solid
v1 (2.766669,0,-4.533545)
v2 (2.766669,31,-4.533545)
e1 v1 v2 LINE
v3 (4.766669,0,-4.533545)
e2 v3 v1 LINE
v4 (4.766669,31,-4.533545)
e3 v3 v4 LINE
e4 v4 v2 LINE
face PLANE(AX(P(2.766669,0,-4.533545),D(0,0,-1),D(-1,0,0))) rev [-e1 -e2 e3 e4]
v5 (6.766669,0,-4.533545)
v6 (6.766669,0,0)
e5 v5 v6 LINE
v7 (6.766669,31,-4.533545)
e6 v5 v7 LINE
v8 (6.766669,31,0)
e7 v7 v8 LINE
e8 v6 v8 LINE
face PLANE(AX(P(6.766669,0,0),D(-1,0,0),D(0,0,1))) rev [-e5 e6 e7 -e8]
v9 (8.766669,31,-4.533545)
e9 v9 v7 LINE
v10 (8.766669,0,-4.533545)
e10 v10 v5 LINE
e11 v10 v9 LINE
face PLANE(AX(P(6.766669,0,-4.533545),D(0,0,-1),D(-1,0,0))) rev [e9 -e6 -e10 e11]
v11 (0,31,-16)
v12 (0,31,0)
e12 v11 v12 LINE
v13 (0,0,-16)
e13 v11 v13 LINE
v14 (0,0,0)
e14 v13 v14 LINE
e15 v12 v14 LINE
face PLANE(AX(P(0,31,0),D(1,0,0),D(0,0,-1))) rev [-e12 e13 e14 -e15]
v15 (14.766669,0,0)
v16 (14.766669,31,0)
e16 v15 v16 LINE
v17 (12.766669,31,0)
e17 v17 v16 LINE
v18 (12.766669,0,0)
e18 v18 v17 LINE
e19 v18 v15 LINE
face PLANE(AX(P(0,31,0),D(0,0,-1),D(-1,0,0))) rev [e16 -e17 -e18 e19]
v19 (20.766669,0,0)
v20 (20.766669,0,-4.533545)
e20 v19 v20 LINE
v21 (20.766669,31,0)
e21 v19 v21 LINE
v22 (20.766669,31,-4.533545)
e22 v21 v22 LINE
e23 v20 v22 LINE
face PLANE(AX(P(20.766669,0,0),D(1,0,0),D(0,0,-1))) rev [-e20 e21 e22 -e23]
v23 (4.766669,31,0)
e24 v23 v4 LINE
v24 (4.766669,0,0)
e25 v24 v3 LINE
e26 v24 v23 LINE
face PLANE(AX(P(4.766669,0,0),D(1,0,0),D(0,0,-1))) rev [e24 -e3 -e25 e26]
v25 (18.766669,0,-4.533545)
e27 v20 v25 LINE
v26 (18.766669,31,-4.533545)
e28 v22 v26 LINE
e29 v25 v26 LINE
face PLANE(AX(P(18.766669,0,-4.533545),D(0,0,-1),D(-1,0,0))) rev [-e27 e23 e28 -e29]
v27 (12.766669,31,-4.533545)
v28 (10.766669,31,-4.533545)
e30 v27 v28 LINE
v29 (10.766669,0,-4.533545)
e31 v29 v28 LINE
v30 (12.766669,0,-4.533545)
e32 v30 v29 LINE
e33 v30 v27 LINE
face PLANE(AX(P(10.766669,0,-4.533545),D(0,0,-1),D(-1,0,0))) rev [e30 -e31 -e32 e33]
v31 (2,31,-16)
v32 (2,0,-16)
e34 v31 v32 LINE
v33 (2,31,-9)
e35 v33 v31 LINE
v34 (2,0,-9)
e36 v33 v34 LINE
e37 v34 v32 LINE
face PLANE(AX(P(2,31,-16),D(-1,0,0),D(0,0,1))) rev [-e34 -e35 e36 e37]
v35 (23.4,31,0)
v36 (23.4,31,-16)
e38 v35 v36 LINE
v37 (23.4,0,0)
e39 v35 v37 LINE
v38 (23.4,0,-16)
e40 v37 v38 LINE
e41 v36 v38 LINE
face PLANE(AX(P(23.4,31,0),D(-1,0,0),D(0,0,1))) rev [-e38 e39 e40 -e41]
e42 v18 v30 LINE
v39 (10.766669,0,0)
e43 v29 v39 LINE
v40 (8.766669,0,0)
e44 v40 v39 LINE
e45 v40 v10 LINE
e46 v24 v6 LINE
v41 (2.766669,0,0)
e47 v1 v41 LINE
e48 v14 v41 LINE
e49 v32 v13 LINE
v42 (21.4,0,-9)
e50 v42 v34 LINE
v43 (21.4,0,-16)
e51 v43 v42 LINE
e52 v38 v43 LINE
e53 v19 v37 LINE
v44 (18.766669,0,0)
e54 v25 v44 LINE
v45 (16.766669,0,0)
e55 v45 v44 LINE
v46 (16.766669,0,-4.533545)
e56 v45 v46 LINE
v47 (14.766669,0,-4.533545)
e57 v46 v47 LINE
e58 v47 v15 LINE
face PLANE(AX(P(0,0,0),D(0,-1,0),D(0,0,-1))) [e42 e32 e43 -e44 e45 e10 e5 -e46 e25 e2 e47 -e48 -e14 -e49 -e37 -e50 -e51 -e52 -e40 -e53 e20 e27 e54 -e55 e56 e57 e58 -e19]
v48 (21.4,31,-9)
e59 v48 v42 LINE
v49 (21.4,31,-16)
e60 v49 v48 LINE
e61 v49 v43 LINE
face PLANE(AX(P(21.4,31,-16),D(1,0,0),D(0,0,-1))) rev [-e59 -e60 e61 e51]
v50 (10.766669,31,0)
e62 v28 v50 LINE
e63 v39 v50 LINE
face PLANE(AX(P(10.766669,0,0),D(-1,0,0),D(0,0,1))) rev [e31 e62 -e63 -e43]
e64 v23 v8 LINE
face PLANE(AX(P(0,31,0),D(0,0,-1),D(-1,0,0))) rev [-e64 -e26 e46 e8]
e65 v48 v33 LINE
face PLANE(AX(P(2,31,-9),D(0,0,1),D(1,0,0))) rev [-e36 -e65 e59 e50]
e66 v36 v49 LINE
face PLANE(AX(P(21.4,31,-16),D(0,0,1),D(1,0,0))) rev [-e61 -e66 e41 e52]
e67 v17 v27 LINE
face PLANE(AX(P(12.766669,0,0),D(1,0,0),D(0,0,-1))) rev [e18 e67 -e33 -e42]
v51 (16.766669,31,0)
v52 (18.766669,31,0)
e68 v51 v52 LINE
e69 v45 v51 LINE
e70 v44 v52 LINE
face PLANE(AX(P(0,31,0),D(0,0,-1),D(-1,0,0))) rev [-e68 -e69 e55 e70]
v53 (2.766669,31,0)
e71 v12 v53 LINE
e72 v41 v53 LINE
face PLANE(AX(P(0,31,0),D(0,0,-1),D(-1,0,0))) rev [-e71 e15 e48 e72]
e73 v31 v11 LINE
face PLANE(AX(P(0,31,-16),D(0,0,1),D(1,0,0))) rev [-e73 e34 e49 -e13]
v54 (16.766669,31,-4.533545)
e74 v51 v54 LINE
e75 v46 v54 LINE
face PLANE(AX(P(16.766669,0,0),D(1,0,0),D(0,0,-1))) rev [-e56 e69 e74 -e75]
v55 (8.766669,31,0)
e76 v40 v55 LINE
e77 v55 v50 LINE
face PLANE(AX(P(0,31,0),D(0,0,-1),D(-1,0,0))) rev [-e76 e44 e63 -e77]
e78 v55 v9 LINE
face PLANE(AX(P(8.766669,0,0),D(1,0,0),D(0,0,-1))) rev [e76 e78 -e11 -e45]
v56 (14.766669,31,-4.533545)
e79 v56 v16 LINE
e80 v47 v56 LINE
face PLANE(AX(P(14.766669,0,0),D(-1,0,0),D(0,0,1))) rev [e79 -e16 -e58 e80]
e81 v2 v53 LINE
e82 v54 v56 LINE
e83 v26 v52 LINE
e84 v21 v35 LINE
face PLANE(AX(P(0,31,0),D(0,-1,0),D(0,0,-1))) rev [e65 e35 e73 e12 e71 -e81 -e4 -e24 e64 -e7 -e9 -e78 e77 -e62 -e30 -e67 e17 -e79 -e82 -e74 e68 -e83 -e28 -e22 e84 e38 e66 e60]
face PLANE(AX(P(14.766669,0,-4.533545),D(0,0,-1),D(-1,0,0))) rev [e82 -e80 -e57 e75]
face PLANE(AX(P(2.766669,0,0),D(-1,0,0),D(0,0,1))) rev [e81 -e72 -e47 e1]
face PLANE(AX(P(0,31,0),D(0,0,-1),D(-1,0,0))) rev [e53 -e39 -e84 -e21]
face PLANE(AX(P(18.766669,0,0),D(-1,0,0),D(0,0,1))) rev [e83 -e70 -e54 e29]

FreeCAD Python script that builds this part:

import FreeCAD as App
import Part
import Sketcher
Q = App.Units.Quantity


def add_polygon(sketch, points):
    """Adds a closed chain of lines whose ends are joined by coincident constraints."""
    first, n = sketch.GeometryCount, len(points)
    for a, b in zip(points, points[1:] + points[:1]):
        sketch.addGeometry(Part.LineSegment(App.Vector(*a, 0), App.Vector(*b, 0)), False)
    for i in range(n):
        sketch.addConstraint(Sketcher.Constraint("Coincident", first + i, 2, first + (i + 1) % n, 1))

doc = App.newDocument("Part")
body = doc.addObject("PartDesign::Body", "Body")

# Sketch on XZ plane
sketch1 = body.newObject("Sketcher::SketchObject", "Sketch")
sketch1.AttachmentSupport = (doc.getObject("XZ_Plane"), [""])
sketch1.MapMode = "FlatFace"
add_polygon(sketch1, [(23.4, -16), (21.4, -16), (21.4, -9), (2, -9), (2, -16), (0, -16), (0, 0), (23.4, 0)])  # lines 0-7
sketch1.addConstraint(Sketcher.Constraint("Horizontal", 0))
sketch1.addConstraint(Sketcher.Constraint("Vertical", 1))
sketch1.addConstraint(Sketcher.Constraint("Horizontal", 2))
sketch1.addConstraint(Sketcher.Constraint("Vertical", 3))
sketch1.addConstraint(Sketcher.Constraint("Horizontal", 4))
sketch1.addConstraint(Sketcher.Constraint("Vertical", 5))
sketch1.addConstraint(Sketcher.Constraint("Horizontal", 6))
sketch1.addConstraint(Sketcher.Constraint("Vertical", 7))
sketch1.addConstraint(Sketcher.Constraint("Coincident", 5, 2, -1, 1))
sketch1.addConstraint(Sketcher.Constraint("Horizontal", 0, 2, 3, 2))
sketch1.addConstraint(Sketcher.Constraint("Equal", 0, 4))
sketch1.addConstraint(Sketcher.Constraint("DistanceX", 0, 2, 0, 1, Q("2 mm")))
sketch1.addConstraint(Sketcher.Constraint("DistanceY", 1, 1, 1, 2, Q("7 mm")))
sketch1.addConstraint(Sketcher.Constraint("DistanceY", 5, 1, 5, 2, Q("16 mm")))
sketch1.addConstraint(Sketcher.Constraint("DistanceX", 2, 2, 2, 1, Q("19.4 mm")))
pad1 = body.newObject("PartDesign::Pad", "Pad")
pad1.Profile = sketch1
pad1.Length = 31
pad1.Reversed = True

# Sketch on XZ plane
sketch2 = body.newObject("Sketcher::SketchObject", "Sketch001")
sketch2.AttachmentSupport = (doc.getObject("XZ_Plane"), [""])
sketch2.MapMode = "FlatFace"
sketch2.AttachmentOffset = App.Placement(App.Vector(0, 0, -31), App.Rotation())
add_polygon(sketch2, [(2.8, -4.5), (2.8, 0), (4.8, 0), (4.8, -4.5)])  # lines 0-3
add_polygon(sketch2, [(6.8, -4.5), (6.8, 0), (8.8, 0), (8.8, -4.5)])  # lines 4-7
add_polygon(sketch2, [(10.8, -4.5), (10.8, 0), (12.8, 0), (12.8, -4.5)])  # lines 8-11
add_polygon(sketch2, [(14.8, -4.5), (14.8, 0), (16.8, 0), (16.8, -4.5)])  # lines 12-15
add_polygon(sketch2, [(18.8, -4.5), (18.8, 0), (20.8, 0), (20.8, -4.5)])  # lines 16-19
sketch2.addConstraint(Sketcher.Constraint("Vertical", 0))
sketch2.addConstraint(Sketcher.Constraint("Horizontal", 1))
sketch2.addConstraint(Sketcher.Constraint("Vertical", 2))
sketch2.addConstraint(Sketcher.Constraint("Horizontal", 3))
sketch2.addConstraint(Sketcher.Constraint("Vertical", 4))
sketch2.addConstraint(Sketcher.Constraint("Horizontal", 5))
sketch2.addConstraint(Sketcher.Constraint("Vertical", 6))
sketch2.addConstraint(Sketcher.Constraint("Horizontal", 7))
sketch2.addConstraint(Sketcher.Constraint("Vertical", 8))
sketch2.addConstraint(Sketcher.Constraint("Horizontal", 9))
sketch2.addConstraint(Sketcher.Constraint("Vertical", 10))
sketch2.addConstraint(Sketcher.Constraint("Horizontal", 11))
sketch2.addConstraint(Sketcher.Constraint("Vertical", 12))
sketch2.addConstraint(Sketcher.Constraint("Horizontal", 13))
sketch2.addConstraint(Sketcher.Constraint("Vertical", 14))
sketch2.addConstraint(Sketcher.Constraint("Horizontal", 15))
sketch2.addConstraint(Sketcher.Constraint("Vertical", 16))
sketch2.addConstraint(Sketcher.Constraint("Horizontal", 17))
sketch2.addConstraint(Sketcher.Constraint("Vertical", 18))
sketch2.addConstraint(Sketcher.Constraint("Horizontal", 19))
sketch2.addConstraint(Sketcher.Constraint("PointOnObject", 0, 2, -1))
sketch2.addConstraint(Sketcher.Constraint("PointOnObject", 4, 2, -1))
sketch2.addConstraint(Sketcher.Constraint("PointOnObject", 8, 2, -1))
sketch2.addConstraint(Sketcher.Constraint("PointOnObject", 12, 2, -1))
sketch2.addConstraint(Sketcher.Constraint("PointOnObject", 16, 2, -1))
sketch2.addConstraint(Sketcher.Constraint("Horizontal", 3, 2, 6, 2))
sketch2.addConstraint(Sketcher.Constraint("Horizontal", 7, 2, 10, 2))
sketch2.addConstraint(Sketcher.Constraint("Horizontal", 11, 2, 14, 2))
sketch2.addConstraint(Sketcher.Constraint("Horizontal", 15, 2, 18, 2))
sketch2.addConstraint(Sketcher.Constraint("Equal", 3, 5))
sketch2.addConstraint(Sketcher.Constraint("Equal", 7, 9))
sketch2.addConstraint(Sketcher.Constraint("Equal", 11, 13))
sketch2.addConstraint(Sketcher.Constraint("Equal", 15, 17))
sketch2.addConstraint(Sketcher.Constraint("DistanceX", 1, 1, 1, 2, Q("2 mm")))
sketch2.addConstraint(Sketcher.Constraint("DistanceX", 1, 2, 4, 2, Q("2 mm")))
sketch2.addConstraint(Sketcher.Constraint("DistanceX", 5, 2, 8, 2, Q("2 mm")))
sketch2.addConstraint(Sketcher.Constraint("DistanceX", 9, 2, 12, 2, Q("2 mm")))
sketch2.addConstraint(Sketcher.Constraint("DistanceX", 13, 2, 16, 2, Q("2 mm")))
sketch2.addConstraint(Sketcher.Constraint("DistanceY", 0, 1, 0, 2, Q("4.533545 mm")))
sketch2.addConstraint(Sketcher.Constraint("DistanceX", -1, 1, 0, 2, Q("2.766669 mm")))
pocket1 = body.newObject("PartDesign::Pocket", "Pocket")
pocket1.Profile = sketch2
pocket1.Type = "ThroughAll"
pocket1.Reversed = True

doc.recompute()
